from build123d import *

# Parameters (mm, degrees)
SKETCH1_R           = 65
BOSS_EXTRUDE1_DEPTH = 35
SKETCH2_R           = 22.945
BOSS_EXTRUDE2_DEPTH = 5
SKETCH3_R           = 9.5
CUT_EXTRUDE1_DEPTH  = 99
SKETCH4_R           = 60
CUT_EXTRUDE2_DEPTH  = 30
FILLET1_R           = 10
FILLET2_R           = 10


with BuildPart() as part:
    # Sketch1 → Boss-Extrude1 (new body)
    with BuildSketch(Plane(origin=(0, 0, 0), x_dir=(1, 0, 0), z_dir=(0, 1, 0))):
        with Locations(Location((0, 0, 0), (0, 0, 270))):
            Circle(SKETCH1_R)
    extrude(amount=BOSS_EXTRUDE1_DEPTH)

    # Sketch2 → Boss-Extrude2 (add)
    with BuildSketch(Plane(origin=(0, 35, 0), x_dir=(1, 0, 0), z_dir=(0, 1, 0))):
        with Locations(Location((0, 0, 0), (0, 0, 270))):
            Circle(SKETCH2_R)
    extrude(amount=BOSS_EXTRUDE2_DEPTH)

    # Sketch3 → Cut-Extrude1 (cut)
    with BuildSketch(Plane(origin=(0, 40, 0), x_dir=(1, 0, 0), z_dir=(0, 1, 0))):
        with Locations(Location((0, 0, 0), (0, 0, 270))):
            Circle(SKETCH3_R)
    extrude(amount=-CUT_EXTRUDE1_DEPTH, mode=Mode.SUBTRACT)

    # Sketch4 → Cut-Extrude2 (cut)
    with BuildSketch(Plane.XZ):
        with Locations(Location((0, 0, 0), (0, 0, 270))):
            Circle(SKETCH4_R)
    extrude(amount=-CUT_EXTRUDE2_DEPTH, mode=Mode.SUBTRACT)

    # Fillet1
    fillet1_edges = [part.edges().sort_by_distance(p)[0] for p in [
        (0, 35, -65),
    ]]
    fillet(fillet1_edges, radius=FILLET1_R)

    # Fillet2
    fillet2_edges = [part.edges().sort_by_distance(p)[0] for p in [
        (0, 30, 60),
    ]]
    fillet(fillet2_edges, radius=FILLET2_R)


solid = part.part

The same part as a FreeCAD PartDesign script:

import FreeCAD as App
import Part
import Sketcher
Q = App.Units.Quantity


def edges_at(feature, points):
    """Names of the edges that pass closest to the given points."""
    edges = feature.Shape.Edges
    near = lambda p: min(range(len(edges)), key=lambda i: edges[i].distToShape(Part.Vertex(*p))[0])
    return sorted({f"Edge{near(p) + 1}" for p in points})

doc = App.newDocument("Part")
params = doc.addObject("Spreadsheet::Sheet", "Params")
for row, (alias, value) in enumerate([
    ("sketch1_diameter", "130 mm"),
    ("pad1_length", "35 mm"),
    ("sketch2_diameter", "45.89 mm"),
    ("pad2_length", "5 mm"),
    ("sketch3_diameter", "19 mm"),
    ("pocket1_length", "99 mm"),
    ("sketch4_diameter", "120 mm"),
    ("pocket2_length", "30 mm"),
    ("fillet_radius", "10 mm"),
    ("fillet2_radius", "10 mm"),
], start=1):
    params.set(f"A{row}", alias)
    params.set(f"B{row}", "=" + value)
    params.setAlias(f"B{row}", alias)

body = doc.addObject("PartDesign::Body", "Body")

sketch1 = body.newObject("Sketcher::SketchObject", "Sketch")
sketch1.AttachmentSupport = (doc.getObject("XZ_Plane"), [""])
sketch1.MapMode = "FlatFace"
sketch1.addGeometry(Part.Circle(App.Vector(0, 0, 0), App.Vector(0, 0, 1), 65), False)
sketch1.addConstraint([
    Sketcher.Constraint("Coincident", 0, 3, -1, 1),
    Sketcher.Constraint("Diameter", 0, Q("130 mm")),
])
sketch1.setExpression("Constraints[1]", "Params.sketch1_diameter")
pad1 = body.newObject("PartDesign::Pad", "Pad")
pad1.Profile = sketch1
pad1.setExpression("Length", "Params.pad1_length")
pad1.Reversed = True

sketch2 = body.newObject("Sketcher::SketchObject", "Sketch001")
sketch2.AttachmentSupport = (doc.getObject("XZ_Plane"), [""])
sketch2.MapMode = "FlatFace"
sketch2.AttachmentOffset = App.Placement(App.Vector(0, 0, -35), App.Rotation())
sketch2.addGeometry(Part.Circle(App.Vector(0, 0, 0), App.Vector(0, 0, 1), 23), False)
sketch2.addConstraint([
    Sketcher.Constraint("Coincident", 0, 3, -1, 1),
    Sketcher.Constraint("Diameter", 0, Q("45.89 mm")),
])
sketch2.setExpression("Constraints[1]", "Params.sketch2_diameter")
pad2 = body.newObject("PartDesign::Pad", "Pad001")
pad2.Profile = sketch2
pad2.setExpression("Length", "Params.pad2_length")
pad2.Reversed = True

sketch3 = body.newObject("Sketcher::SketchObject", "Sketch002")
sketch3.AttachmentSupport = (doc.getObject("XZ_Plane"), [""])
sketch3.MapMode = "FlatFace"
sketch3.AttachmentOffset = App.Placement(App.Vector(0, 0, -40), App.Rotation())
sketch3.addGeometry(Part.Circle(App.Vector(0, 0, 0), App.Vector(0, 0, 1), 10), False)
sketch3.addConstraint([
    Sketcher.Constraint("Coincident", 0, 3, -1, 1),
    Sketcher.Constraint("Diameter", 0, Q("19 mm")),
])
sketch3.setExpression("Constraints[1]", "Params.sketch3_diameter")
pocket1 = body.newObject("PartDesign::Pocket", "Pocket")
pocket1.Profile = sketch3
pocket1.setExpression("Length", "Params.pocket1_length")
pocket1.Reversed = True

sketch4 = body.newObject("Sketcher::SketchObject", "Sketch003")
sketch4.AttachmentSupport = (doc.getObject("XZ_Plane"), [""])
sketch4.MapMode = "FlatFace"
sketch4.addGeometry(Part.Circle(App.Vector(0, 0, 0), App.Vector(0, 0, 1), 60), False)
sketch4.addConstraint([
    Sketcher.Constraint("Coincident", 0, 3, -1, 1),
    Sketcher.Constraint("Diameter", 0, Q("120 mm")),
])
sketch4.setExpression("Constraints[1]", "Params.sketch4_diameter")
pocket2 = body.newObject("PartDesign::Pocket", "Pocket001")
pocket2.Profile = sketch4
pocket2.setExpression("Length", "Params.pocket2_length")
doc.recompute()

fillet = body.newObject("PartDesign::Fillet", "Fillet")
fillet.Base = (pocket2, edges_at(pocket2, [(0, 35, -65)]))
fillet.setExpression("Radius", "Params.fillet_radius")
doc.recompute()

fillet2 = body.newObject("PartDesign::Fillet", "Fillet001")
fillet2.Base = (fillet, edges_at(fillet, [(0, 30, 60)]))
fillet2.setExpression("Radius", "Params.fillet2_radius")

doc.recompute()
